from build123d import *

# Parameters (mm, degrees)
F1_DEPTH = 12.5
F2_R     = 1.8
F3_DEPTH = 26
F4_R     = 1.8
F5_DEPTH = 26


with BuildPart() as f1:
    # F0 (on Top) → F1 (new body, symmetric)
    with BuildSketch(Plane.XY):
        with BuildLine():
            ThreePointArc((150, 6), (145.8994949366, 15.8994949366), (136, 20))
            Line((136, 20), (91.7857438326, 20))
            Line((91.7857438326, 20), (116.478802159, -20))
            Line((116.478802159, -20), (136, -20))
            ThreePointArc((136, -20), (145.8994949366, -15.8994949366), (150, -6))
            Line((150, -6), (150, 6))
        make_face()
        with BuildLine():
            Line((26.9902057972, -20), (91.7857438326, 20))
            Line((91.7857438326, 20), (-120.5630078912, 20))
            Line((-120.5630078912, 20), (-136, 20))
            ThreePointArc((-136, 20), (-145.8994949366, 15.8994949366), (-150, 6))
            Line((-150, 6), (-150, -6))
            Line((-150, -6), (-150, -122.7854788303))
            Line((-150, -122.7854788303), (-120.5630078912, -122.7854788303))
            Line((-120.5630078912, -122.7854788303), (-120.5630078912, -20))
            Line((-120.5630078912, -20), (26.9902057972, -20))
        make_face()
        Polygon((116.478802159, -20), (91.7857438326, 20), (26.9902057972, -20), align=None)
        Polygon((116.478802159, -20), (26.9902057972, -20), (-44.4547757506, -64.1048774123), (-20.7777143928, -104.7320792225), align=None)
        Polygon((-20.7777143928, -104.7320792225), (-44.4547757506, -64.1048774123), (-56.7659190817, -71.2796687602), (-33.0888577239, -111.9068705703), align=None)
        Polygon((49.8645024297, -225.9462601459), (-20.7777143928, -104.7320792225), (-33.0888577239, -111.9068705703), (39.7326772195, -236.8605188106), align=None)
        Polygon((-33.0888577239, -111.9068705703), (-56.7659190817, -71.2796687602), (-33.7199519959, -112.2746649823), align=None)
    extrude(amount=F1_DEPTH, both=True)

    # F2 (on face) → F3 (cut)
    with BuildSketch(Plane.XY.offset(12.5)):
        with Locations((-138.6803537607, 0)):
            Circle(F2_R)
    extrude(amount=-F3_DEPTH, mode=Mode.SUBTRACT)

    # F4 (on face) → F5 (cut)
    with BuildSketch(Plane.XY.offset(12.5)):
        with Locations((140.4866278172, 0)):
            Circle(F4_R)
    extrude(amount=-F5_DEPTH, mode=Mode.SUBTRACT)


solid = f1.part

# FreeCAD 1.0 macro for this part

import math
import FreeCAD as App
import Part
import Sketcher

V = App.Vector
Q = App.Units.Quantity

doc = App.newDocument("Part")
body = doc.addObject("PartDesign::Body", "Body")

sketch1 = body.newObject("Sketcher::SketchObject", "Sketch")
sketch1.AttachmentSupport = (doc.getObject("XY_Plane"), [""])
sketch1.MapMode = "FlatFace"
sketch1.addGeometry([
    Part.ArcOfCircle(Part.Circle(V(136, 6, 0), V(0, 0, 1), 14), math.radians(0), math.radians(90)),
    Part.LineSegment(V(136, 20, 0), V(-136, 20, 0)),
    Part.ArcOfCircle(Part.Circle(V(-136, 6, 0), V(0, 0, 1), 14), math.radians(90), math.radians(180)),
    Part.LineSegment(V(-150, 6, 0), V(-150, -122.8, 0)),
    Part.LineSegment(V(-150, -122.8, 0), V(-120.6, -122.8, 0)),
    Part.LineSegment(V(-120.6, -122.8, 0), V(-120.6, -20, 0)),
    Part.LineSegment(V(-120.6, -20, 0), V(27, -20, 0)),
    Part.LineSegment(V(27, -20, 0), V(-44.5, -64.1, 0)),
    Part.LineSegment(V(-44.5, -64.1, 0), V(-56.8, -71.3, 0)),
    Part.LineSegment(V(-56.8, -71.3, 0), V(-33.7, -112.3, 0)),
    Part.LineSegment(V(-33.7, -112.3, 0), V(-33.1, -111.9, 0)),
    Part.LineSegment(V(-33.1, -111.9, 0), V(39.7, -236.9, 0)),
    Part.LineSegment(V(39.7, -236.9, 0), V(49.9, -225.9, 0)),
    Part.LineSegment(V(49.9, -225.9, 0), V(-20.8, -104.7, 0)),
    Part.LineSegment(V(-20.8, -104.7, 0), V(116.5, -20, 0)),
    Part.LineSegment(V(116.5, -20, 0), V(136, -20, 0)),
    Part.ArcOfCircle(Part.Circle(V(136, -6, 0), V(0, 0, 1), 14), math.radians(-90), math.radians(0)),
    Part.LineSegment(V(150, -6, 0), V(150, 6, 0)),
], False)
sketch1.addConstraint([
    Sketcher.Constraint("Tangent", 0, 2, 1, 1),
    Sketcher.Constraint("Tangent", 1, 2, 2, 1),
    Sketcher.Constraint("Tangent", 2, 2, 3, 1),
    Sketcher.Constraint("Coincident", 3, 2, 4, 1),
    Sketcher.Constraint("Coincident", 4, 2, 5, 1),
    Sketcher.Constraint("Coincident", 5, 2, 6, 1),
    Sketcher.Constraint("Coincident", 6, 2, 7, 1),
    Sketcher.Constraint("Coincident", 7, 2, 8, 1),
    Sketcher.Constraint("Coincident", 8, 2, 9, 1),
    Sketcher.Constraint("Coincident", 9, 2, 10, 1),
    Sketcher.Constraint("Coincident", 10, 2, 11, 1),
    Sketcher.Constraint("Coincident", 11, 2, 12, 1),
    Sketcher.Constraint("Coincident", 12, 2, 13, 1),
    Sketcher.Constraint("Coincident", 13, 2, 14, 1),
    Sketcher.Constraint("Coincident", 14, 2, 15, 1),
    Sketcher.Constraint("Tangent", 15, 2, 16, 1),
    Sketcher.Constraint("Tangent", 16, 2, 17, 1),
    Sketcher.Constraint("Tangent", 17, 2, 0, 1),
    Sketcher.Constraint("Horizontal", 1),
    Sketcher.Constraint("Vertical", 3),
    Sketcher.Constraint("Horizontal", 4),
    Sketcher.Constraint("Vertical", 5),
    Sketcher.Constraint("Horizontal", 6),
    Sketcher.Constraint("Horizontal", 15),
    Sketcher.Constraint("Vertical", 17),
    Sketcher.Constraint("Equal", 0, 2),
    Sketcher.Constraint("Equal", 2, 16),
    Sketcher.Constraint("Symmetric", 2, 3, 16, 3, -1, 1),
    Sketcher.Constraint("Parallel", 8, 10),
    Sketcher.Constraint("Perpendicular", 10, 11),
    Sketcher.Constraint("Parallel", 11, 13),
    Sketcher.Constraint("Parallel", 7, 14),
    Sketcher.Constraint("Horizontal", 6, 2, 14, 2),
    Sketcher.Constraint("Radius", 0, Q("14 mm")),
    Sketcher.Constraint("DistanceX", 1, 2, 1, 1, Q("272 mm")),
    Sketcher.Constraint("DistanceY", 17, 1, 17, 2, Q("12 mm")),
    Sketcher.Constraint("Distance", 11, Q("144.624998 mm")),
    Sketcher.Constraint("DistanceY", 3, 2, 3, 1, Q("128.785479 mm")),
    Sketcher.Constraint("DistanceY", 4, 2, 7, 2, Q("58.680601 mm")),
    Sketcher.Constraint("DistanceY", 10, 2, 8, 2, Q("40.627202 mm")),
    Sketcher.Constraint("DistanceY", 13, 2, 7, 2, Q("40.627202 mm")),
    Sketcher.Constraint("Distance", 7, Q("83.962049 mm")),
    Sketcher.Constraint("Distance", 9, Q("47.028782 mm")),
    Sketcher.Constraint("Distance", 12, Q("14.892109 mm")),
    Sketcher.Constraint("Distance", 13, Q("140.29683 mm")),
    Sketcher.Constraint("DistanceX", 4, 1, 4, 2, Q("29.436992 mm")),
    Sketcher.Constraint("DistanceX", 6, 1, 6, 2, Q("147.553214 mm")),
    Sketcher.Constraint("DistanceX", 15, 1, 15, 2, Q("19.521198 mm")),
    Sketcher.Constraint("DistanceX", 8, 2, -1, 1, Q("56.765919 mm")),
    Sketcher.Constraint("DistanceY", 8, 2, -1, 1, Q("71.279669 mm")),
])
pad1 = body.newObject("PartDesign::Pad", "Pad")
pad1.Profile = sketch1
pad1.Length = 25
pad1.Midplane = True

sketch2 = body.newObject("Sketcher::SketchObject", "Sketch001")
sketch2.AttachmentSupport = (doc.getObject("XY_Plane"), [""])
sketch2.MapMode = "FlatFace"
sketch2.AttachmentOffset = App.Placement(V(0, 0, 12.5), App.Rotation())
sketch2.addGeometry(Part.Circle(V(-138.7, 0, 0), V(0, 0, 1), 1.8), False)
sketch2.addConstraint([
    Sketcher.Constraint("PointOnObject", 0, 3, -1),
    Sketcher.Constraint("Diameter", 0, Q("3.6 mm")),
    Sketcher.Constraint("DistanceX", 0, 3, -1, 1, Q("138.680354 mm")),
])
pocket1 = body.newObject("PartDesign::Pocket", "Pocket")
pocket1.Profile = sketch2
pocket1.Length = 26

sketch3 = body.newObject("Sketcher::SketchObject", "Sketch002")
sketch3.AttachmentSupport = (doc.getObject("XY_Plane"), [""])
sketch3.MapMode = "FlatFace"
sketch3.AttachmentOffset = App.Placement(V(0, 0, 12.5), App.Rotation())
sketch3.addGeometry(Part.Circle(V(140.5, 0, 0), V(0, 0, 1), 1.8), False)
sketch3.addConstraint([
    Sketcher.Constraint("PointOnObject", 0, 3, -1),
    Sketcher.Constraint("Diameter", 0, Q("3.6 mm")),
    Sketcher.Constraint("DistanceX", -1, 1, 0, 3, Q("140.486628 mm")),
])
pocket2 = body.newObject("PartDesign::Pocket", "Pocket001")
pocket2.Profile = sketch3
pocket2.Length = 26

doc.recompute()
